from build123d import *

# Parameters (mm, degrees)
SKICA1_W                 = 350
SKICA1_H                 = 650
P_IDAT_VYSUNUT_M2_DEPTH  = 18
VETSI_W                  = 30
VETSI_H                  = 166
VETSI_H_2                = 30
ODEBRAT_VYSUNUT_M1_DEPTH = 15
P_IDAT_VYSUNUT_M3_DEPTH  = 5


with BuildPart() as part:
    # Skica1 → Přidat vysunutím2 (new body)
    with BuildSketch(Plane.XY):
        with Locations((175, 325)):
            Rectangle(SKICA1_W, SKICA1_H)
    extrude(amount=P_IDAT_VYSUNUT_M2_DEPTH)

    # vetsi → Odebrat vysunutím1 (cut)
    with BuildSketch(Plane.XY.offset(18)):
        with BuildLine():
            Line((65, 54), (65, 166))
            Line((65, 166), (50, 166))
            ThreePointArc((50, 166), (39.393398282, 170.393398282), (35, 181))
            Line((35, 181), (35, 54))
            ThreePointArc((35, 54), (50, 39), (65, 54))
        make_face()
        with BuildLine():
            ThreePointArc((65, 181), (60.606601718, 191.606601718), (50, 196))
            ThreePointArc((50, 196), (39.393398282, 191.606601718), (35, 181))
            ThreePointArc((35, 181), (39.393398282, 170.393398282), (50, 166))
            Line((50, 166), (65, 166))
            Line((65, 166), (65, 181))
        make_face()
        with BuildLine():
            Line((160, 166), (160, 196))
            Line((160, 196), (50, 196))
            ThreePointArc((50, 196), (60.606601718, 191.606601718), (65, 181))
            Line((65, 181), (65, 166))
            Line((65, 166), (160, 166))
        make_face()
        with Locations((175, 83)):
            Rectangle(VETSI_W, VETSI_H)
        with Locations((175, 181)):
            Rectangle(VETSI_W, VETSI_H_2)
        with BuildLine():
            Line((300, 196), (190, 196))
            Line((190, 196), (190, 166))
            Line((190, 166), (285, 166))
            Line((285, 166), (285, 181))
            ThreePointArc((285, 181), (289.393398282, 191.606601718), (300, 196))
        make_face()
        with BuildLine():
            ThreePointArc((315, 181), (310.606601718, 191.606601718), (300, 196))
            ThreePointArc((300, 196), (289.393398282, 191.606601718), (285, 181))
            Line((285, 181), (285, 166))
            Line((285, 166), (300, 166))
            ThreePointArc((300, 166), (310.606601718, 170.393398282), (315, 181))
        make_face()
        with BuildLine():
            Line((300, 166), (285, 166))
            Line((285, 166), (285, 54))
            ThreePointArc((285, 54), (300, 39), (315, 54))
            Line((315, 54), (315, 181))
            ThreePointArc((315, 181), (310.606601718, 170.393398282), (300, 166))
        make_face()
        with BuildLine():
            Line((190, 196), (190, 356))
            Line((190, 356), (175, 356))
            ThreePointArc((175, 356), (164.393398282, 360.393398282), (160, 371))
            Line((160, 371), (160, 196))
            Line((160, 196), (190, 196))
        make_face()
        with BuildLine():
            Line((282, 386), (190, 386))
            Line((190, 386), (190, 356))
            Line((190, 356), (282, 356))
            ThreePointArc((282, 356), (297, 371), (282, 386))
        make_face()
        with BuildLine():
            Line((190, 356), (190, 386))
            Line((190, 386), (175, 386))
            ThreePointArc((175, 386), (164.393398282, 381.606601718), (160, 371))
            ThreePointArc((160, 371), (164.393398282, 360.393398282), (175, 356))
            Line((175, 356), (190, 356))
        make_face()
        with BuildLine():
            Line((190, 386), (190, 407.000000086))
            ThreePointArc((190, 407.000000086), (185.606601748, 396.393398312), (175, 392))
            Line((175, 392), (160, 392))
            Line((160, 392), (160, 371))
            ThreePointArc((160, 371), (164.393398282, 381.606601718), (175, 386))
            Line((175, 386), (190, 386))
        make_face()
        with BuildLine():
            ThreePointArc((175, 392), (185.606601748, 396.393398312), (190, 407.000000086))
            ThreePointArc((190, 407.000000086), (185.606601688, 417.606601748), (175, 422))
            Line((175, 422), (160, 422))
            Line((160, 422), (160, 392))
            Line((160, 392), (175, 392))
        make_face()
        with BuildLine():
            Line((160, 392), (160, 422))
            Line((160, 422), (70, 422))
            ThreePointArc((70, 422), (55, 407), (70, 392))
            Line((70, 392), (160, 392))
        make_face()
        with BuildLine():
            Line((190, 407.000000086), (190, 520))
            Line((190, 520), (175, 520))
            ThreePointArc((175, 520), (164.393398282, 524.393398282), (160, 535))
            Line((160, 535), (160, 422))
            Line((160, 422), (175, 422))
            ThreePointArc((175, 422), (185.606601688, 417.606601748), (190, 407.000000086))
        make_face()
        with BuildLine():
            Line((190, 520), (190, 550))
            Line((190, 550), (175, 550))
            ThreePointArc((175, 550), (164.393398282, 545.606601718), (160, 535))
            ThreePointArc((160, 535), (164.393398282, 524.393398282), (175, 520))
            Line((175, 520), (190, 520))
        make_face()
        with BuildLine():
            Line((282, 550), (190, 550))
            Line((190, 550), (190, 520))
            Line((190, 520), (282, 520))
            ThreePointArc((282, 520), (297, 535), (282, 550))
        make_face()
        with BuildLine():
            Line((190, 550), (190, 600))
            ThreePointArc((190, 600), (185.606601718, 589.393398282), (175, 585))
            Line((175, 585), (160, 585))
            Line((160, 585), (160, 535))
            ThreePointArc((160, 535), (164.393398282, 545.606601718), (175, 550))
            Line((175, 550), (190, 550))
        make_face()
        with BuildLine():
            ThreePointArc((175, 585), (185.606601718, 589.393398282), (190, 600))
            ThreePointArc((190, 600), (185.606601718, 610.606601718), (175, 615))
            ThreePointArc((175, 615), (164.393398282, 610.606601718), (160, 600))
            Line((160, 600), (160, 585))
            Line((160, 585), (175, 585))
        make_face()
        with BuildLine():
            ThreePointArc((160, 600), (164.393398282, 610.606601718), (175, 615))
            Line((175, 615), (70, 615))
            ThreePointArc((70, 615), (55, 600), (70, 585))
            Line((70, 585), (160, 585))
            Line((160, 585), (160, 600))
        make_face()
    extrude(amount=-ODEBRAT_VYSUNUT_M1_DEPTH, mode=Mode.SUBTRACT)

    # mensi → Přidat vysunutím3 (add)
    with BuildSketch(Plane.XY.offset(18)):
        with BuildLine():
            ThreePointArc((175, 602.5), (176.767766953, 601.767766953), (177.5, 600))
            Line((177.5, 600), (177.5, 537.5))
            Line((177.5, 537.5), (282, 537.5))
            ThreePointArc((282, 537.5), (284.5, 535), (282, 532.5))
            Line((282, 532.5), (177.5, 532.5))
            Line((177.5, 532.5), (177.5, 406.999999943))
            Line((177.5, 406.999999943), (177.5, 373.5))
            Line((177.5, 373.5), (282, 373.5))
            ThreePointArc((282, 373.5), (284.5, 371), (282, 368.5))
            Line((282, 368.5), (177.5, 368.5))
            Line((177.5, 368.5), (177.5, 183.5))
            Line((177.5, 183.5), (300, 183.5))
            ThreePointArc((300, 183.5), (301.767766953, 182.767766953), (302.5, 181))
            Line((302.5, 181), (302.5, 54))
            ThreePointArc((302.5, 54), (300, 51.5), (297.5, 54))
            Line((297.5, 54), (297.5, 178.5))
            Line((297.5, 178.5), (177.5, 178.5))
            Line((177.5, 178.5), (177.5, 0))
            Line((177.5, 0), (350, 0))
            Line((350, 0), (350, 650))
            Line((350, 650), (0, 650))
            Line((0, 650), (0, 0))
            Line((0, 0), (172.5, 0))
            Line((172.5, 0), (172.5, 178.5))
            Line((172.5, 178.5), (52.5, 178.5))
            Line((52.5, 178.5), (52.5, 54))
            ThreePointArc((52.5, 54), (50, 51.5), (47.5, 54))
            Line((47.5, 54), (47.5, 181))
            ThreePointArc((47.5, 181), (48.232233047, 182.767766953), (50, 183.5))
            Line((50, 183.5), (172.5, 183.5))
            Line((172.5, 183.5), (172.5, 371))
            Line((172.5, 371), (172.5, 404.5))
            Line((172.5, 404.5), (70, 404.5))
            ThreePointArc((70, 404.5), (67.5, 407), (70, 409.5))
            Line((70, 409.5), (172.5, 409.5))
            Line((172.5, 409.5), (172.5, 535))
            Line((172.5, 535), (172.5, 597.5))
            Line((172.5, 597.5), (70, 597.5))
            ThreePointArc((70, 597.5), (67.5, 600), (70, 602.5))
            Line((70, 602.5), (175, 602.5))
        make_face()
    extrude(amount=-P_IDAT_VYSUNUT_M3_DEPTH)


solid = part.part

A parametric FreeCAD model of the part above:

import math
import FreeCAD as App
import Part
import Sketcher
Q = App.Units.Quantity


def add_polygon(sketch, points):
    """Adds a closed chain of lines whose ends are joined by coincident constraints."""
    first, n = sketch.GeometryCount, len(points)
    for a, b in zip(points, points[1:] + points[:1]):
        sketch.addGeometry(Part.LineSegment(App.Vector(*a, 0), App.Vector(*b, 0)), False)
    for i in range(n):
        sketch.addConstraint(Sketcher.Constraint("Coincident", first + i, 2, first + (i + 1) % n, 1))

doc = App.newDocument("Part")
params = doc.addObject("Spreadsheet::Sheet", "Params")
for row, (alias, value) in enumerate([
    ("sketch1_width", "350 mm"),
    ("sketch1_height", "650 mm"),
    ("pad1_length", "18 mm"),
    ("sketch2_radius", "15 mm"),
    ("sketch2_width", "95 mm"),
    ("sketch2_width2", "30 mm"),
    ("sketch2_width3", "92 mm"),
    ("sketch2_width4", "105 mm"),
    ("pocket1_length", "15 mm"),
    ("sketch3_radius", "2.5 mm"),
    ("sketch3_width", "120 mm"),
    ("sketch3_width2", "350 mm"),
    ("sketch3_width3", "105 mm"),
    ("sketch3_height", "159 mm"),
    ("pad2_length", "5 mm"),
], start=1):
    params.set(f"A{row}", alias)
    params.set(f"B{row}", "=" + value)
    params.setAlias(f"B{row}", alias)

body = doc.addObject("PartDesign::Body", "Body")

# Sketch on XY plane
sketch1 = body.newObject("Sketcher::SketchObject", "Sketch")
sketch1.AttachmentSupport = (doc.getObject("XY_Plane"), [""])
sketch1.MapMode = "FlatFace"
add_polygon(sketch1, [(0, 650), (0, 0), (350, 0), (350, 650)])  # lines 0-3
sketch1.addConstraint(Sketcher.Constraint("Vertical", 0))
sketch1.addConstraint(Sketcher.Constraint("Horizontal", 1))
sketch1.addConstraint(Sketcher.Constraint("Vertical", 2))
sketch1.addConstraint(Sketcher.Constraint("Horizontal", 3))
sketch1.addConstraint(Sketcher.Constraint("Coincident", 0, 2, -1, 1))
sketch1.addConstraint(Sketcher.Constraint("DistanceX", 1, 1, 1, 2, Q("350 mm")))
sketch1.addConstraint(Sketcher.Constraint("DistanceY", 0, 2, 0, 1, Q("650 mm")))
sketch1.setExpression("Constraints[9]", "Params.sketch1_width")
sketch1.setExpression("Constraints[10]", "Params.sketch1_height")
pad1 = body.newObject("PartDesign::Pad", "Pad")
pad1.Profile = sketch1
pad1.setExpression("Length", "Params.pad1_length")

# Sketch on XY plane
sketch2 = body.newObject("Sketcher::SketchObject", "Sketch001")
sketch2.AttachmentSupport = (doc.getObject("XY_Plane"), [""])
sketch2.MapMode = "FlatFace"
sketch2.AttachmentOffset = App.Placement(App.Vector(0, 0, 18), App.Rotation())
sketch2.addGeometry(Part.LineSegment(App.Vector(65, 54, 0), App.Vector(65, 166, 0)), False)
sketch2.addGeometry(Part.LineSegment(App.Vector(65, 166, 0), App.Vector(160, 166, 0)), False)
sketch2.addGeometry(Part.LineSegment(App.Vector(160, 166, 0), App.Vector(160, 0, 0)), False)
sketch2.addGeometry(Part.LineSegment(App.Vector(160, 0, 0), App.Vector(190, 0, 0)), False)
sketch2.addGeometry(Part.LineSegment(App.Vector(190, 0, 0), App.Vector(190, 166, 0)), False)
sketch2.addGeometry(Part.LineSegment(App.Vector(190, 166, 0), App.Vector(285, 166, 0)), False)
sketch2.addGeometry(Part.LineSegment(App.Vector(285, 166, 0), App.Vector(285, 54, 0)), False)
sketch2.addGeometry(Part.ArcOfCircle(Part.Circle(App.Vector(300, 54, 0), App.Vector(0, 0, 1), 15), math.radians(180), math.radians(360)), False)
sketch2.addGeometry(Part.LineSegment(App.Vector(315, 54, 0), App.Vector(315, 181, 0)), False)
sketch2.addGeometry(Part.ArcOfCircle(Part.Circle(App.Vector(300, 181, 0), App.Vector(0, 0, 1), 15), math.radians(0), math.radians(90)), False)
sketch2.addGeometry(Part.LineSegment(App.Vector(300, 196, 0), App.Vector(190, 196, 0)), False)
sketch2.addGeometry(Part.LineSegment(App.Vector(190, 196, 0), App.Vector(190, 356, 0)), False)
sketch2.addGeometry(Part.LineSegment(App.Vector(190, 356, 0), App.Vector(282, 356, 0)), False)
sketch2.addGeometry(Part.ArcOfCircle(Part.Circle(App.Vector(282, 371, 0), App.Vector(0, 0, 1), 15), math.radians(-90), math.radians(90)), False)
sketch2.addGeometry(Part.LineSegment(App.Vector(282, 386, 0), App.Vector(190, 386, 0)), False)
sketch2.addGeometry(Part.LineSegment(App.Vector(190, 386, 0), App.Vector(190, 520, 0)), False)
sketch2.addGeometry(Part.LineSegment(App.Vector(190, 520, 0), App.Vector(282, 520, 0)), False)
sketch2.addGeometry(Part.ArcOfCircle(Part.Circle(App.Vector(282, 535, 0), App.Vector(0, 0, 1), 15), math.radians(-90), math.radians(90)), False)
sketch2.addGeometry(Part.LineSegment(App.Vector(282, 550, 0), App.Vector(190, 550, 0)), False)
sketch2.addGeometry(Part.LineSegment(App.Vector(190, 550, 0), App.Vector(190, 600, 0)), False)
sketch2.addGeometry(Part.ArcOfCircle(Part.Circle(App.Vector(175, 600, 0), App.Vector(0, 0, 1), 15), math.radians(0), math.radians(90)), False)
sketch2.addGeometry(Part.LineSegment(App.Vector(175, 615, 0), App.Vector(70, 615, 0)), False)
sketch2.addGeometry(Part.ArcOfCircle(Part.Circle(App.Vector(70, 600, 0), App.Vector(0, 0, 1), 15), math.radians(90), math.radians(270)), False)
sketch2.addGeometry(Part.LineSegment(App.Vector(70, 585, 0), App.Vector(160, 585, 0)), False)
sketch2.addGeometry(Part.LineSegment(App.Vector(160, 585, 0), App.Vector(160, 422, 0)), False)
sketch2.addGeometry(Part.LineSegment(App.Vector(160, 422, 0), App.Vector(70, 422, 0)), False)
sketch2.addGeometry(Part.ArcOfCircle(Part.Circle(App.Vector(70, 407, 0), App.Vector(0, 0, 1), 15), math.radians(90), math.radians(270)), False)
sketch2.addGeometry(Part.LineSegment(App.Vector(70, 392, 0), App.Vector(160, 392, 0)), False)
sketch2.addGeometry(Part.LineSegment(App.Vector(160, 392, 0), App.Vector(160, 196, 0)), False)
sketch2.addGeometry(Part.LineSegment(App.Vector(160, 196, 0), App.Vector(50, 196, 0)), False)
sketch2.addGeometry(Part.ArcOfCircle(Part.Circle(App.Vector(50, 181, 0), App.Vector(0, 0, 1), 15), math.radians(90), math.radians(180)), False)
sketch2.addGeometry(Part.LineSegment(App.Vector(35, 181, 0), App.Vector(35, 54, 0)), False)
sketch2.addGeometry(Part.ArcOfCircle(Part.Circle(App.Vector(50, 54, 0), App.Vector(0, 0, 1), 15), math.radians(180), math.radians(360)), False)
sketch2.addConstraint(Sketcher.Constraint("Coincident", 0, 2, 1, 1))
sketch2.addConstraint(Sketcher.Constraint("Coincident", 1, 2, 2, 1))
sketch2.addConstraint(Sketcher.Constraint("Coincident", 2, 2, 3, 1))
sketch2.addConstraint(Sketcher.Constraint("Coincident", 3, 2, 4, 1))
sketch2.addConstraint(Sketcher.Constraint("Coincident", 4, 2, 5, 1))
sketch2.addConstraint(Sketcher.Constraint("Coincident", 5, 2, 6, 1))
sketch2.addConstraint(Sketcher.Constraint("Tangent", 6, 2, 7, 1))
sketch2.addConstraint(Sketcher.Constraint("Tangent", 7, 2, 8, 1))
sketch2.addConstraint(Sketcher.Constraint("Tangent", 8, 2, 9, 1))
sketch2.addConstraint(Sketcher.Constraint("Tangent", 9, 2, 10, 1))
sketch2.addConstraint(Sketcher.Constraint("Coincident", 10, 2, 11, 1))
sketch2.addConstraint(Sketcher.Constraint("Coincident", 11, 2, 12, 1))
sketch2.addConstraint(Sketcher.Constraint("Tangent", 12, 2, 13, 1))
sketch2.addConstraint(Sketcher.Constraint("Tangent", 13, 2, 14, 1))
sketch2.addConstraint(Sketcher.Constraint("Coincident", 14, 2, 15, 1))
sketch2.addConstraint(Sketcher.Constraint("Coincident", 15, 2, 16, 1))
sketch2.addConstraint(Sketcher.Constraint("Tangent", 16, 2, 17, 1))
sketch2.addConstraint(Sketcher.Constraint("Tangent", 17, 2, 18, 1))
sketch2.addConstraint(Sketcher.Constraint("Coincident", 18, 2, 19, 1))
sketch2.addConstraint(Sketcher.Constraint("Tangent", 19, 2, 20, 1))
sketch2.addConstraint(Sketcher.Constraint("Tangent", 20, 2, 21, 1))
sketch2.addConstraint(Sketcher.Constraint("Tangent", 21, 2, 22, 1))
sketch2.addConstraint(Sketcher.Constraint("Tangent", 22, 2, 23, 1))
sketch2.addConstraint(Sketcher.Constraint("Coincident", 23, 2, 24, 1))
sketch2.addConstraint(Sketcher.Constraint("Coincident", 24, 2, 25, 1))
sketch2.addConstraint(Sketcher.Constraint("Tangent", 25, 2, 26, 1))
sketch2.addConstraint(Sketcher.Constraint("Tangent", 26, 2, 27, 1))
sketch2.addConstraint(Sketcher.Constraint("Coincident", 27, 2, 28, 1))
sketch2.addConstraint(Sketcher.Constraint("Coincident", 28, 2, 29, 1))
sketch2.addConstraint(Sketcher.Constraint("Tangent", 29, 2, 30, 1))
sketch2.addConstraint(Sketcher.Constraint("Tangent", 30, 2, 31, 1))
sketch2.addConstraint(Sketcher.Constraint("Tangent", 31, 2, 32, 1))
sketch2.addConstraint(Sketcher.Constraint("Tangent", 32, 2, 0, 1))
sketch2.addConstraint(Sketcher.Constraint("Vertical", 0))
sketch2.addConstraint(Sketcher.Constraint("Horizontal", 1))
sketch2.addConstraint(Sketcher.Constraint("Vertical", 2))
sketch2.addConstraint(Sketcher.Constraint("Horizontal", 3))
sketch2.addConstraint(Sketcher.Constraint("Vertical", 4))
sketch2.addConstraint(Sketcher.Constraint("Horizontal", 5))
sketch2.addConstraint(Sketcher.Constraint("Vertical", 6))
sketch2.addConstraint(Sketcher.Constraint("Vertical", 8))
sketch2.addConstraint(Sketcher.Constraint("Horizontal", 10))
sketch2.addConstraint(Sketcher.Constraint("Vertical", 11))
sketch2.addConstraint(Sketcher.Constraint("Horizontal", 12))
sketch2.addConstraint(Sketcher.Constraint("Horizontal", 14))
sketch2.addConstraint(Sketcher.Constraint("Vertical", 15))
sketch2.addConstraint(Sketcher.Constraint("Horizontal", 16))
sketch2.addConstraint(Sketcher.Constraint("Horizontal", 18))
sketch2.addConstraint(Sketcher.Constraint("Vertical", 19))
sketch2.addConstraint(Sketcher.Constraint("Horizontal", 21))
sketch2.addConstraint(Sketcher.Constraint("Horizontal", 23))
sketch2.addConstraint(Sketcher.Constraint("Vertical", 24))
sketch2.addConstraint(Sketcher.Constraint("Horizontal", 25))
sketch2.addConstraint(Sketcher.Constraint("Horizontal", 27))
sketch2.addConstraint(Sketcher.Constraint("Vertical", 28))
sketch2.addConstraint(Sketcher.Constraint("Horizontal", 29))
sketch2.addConstraint(Sketcher.Constraint("Vertical", 31))
sketch2.addConstraint(Sketcher.Constraint("Equal", 7, 9))
sketch2.addConstraint(Sketcher.Constraint("Equal", 9, 13))
sketch2.addConstraint(Sketcher.Constraint("Equal", 13, 17))
sketch2.addConstraint(Sketcher.Constraint("Equal", 17, 20))
sketch2.addConstraint(Sketcher.Constraint("Equal", 20, 22))
sketch2.addConstraint(Sketcher.Constraint("Equal", 22, 26))
sketch2.addConstraint(Sketcher.Constraint("Equal", 26, 30))
sketch2.addConstraint(Sketcher.Constraint("Equal", 30, 32))
sketch2.addConstraint(Sketcher.Constraint("PointOnObject", 2, 2, -1))
sketch2.addConstraint(Sketcher.Constraint("Horizontal", 9, 3, 30, 3))
sketch2.addConstraint(Sketcher.Constraint("Horizontal", 7, 3, 32, 3))
sketch2.addConstraint(Sketcher.Constraint("Horizontal", 1, 2, 4, 2))
sketch2.addConstraint(Sketcher.Constraint("Vertical", 13, 3, 17, 3))
sketch2.addConstraint(Sketcher.Constraint("Vertical", 22, 3, 26, 3))
sketch2.addConstraint(Sketcher.Constraint("Vertical", 4, 2, 10, 2))
sketch2.addConstraint(Sketcher.Constraint("Vertical", 11, 2, 14, 2))
sketch2.addConstraint(Sketcher.Constraint("Vertical", 15, 2, 18, 2))
sketch2.addConstraint(Sketcher.Constraint("Vertical", 2, 2, 23, 2))
sketch2.addConstraint(Sketcher.Constraint("Vertical", 24, 2, 27, 2))
sketch2.addConstraint(Sketcher.Constraint("Equal", 1, 5))
sketch2.addConstraint(Sketcher.Constraint("Radius", 7, Q("15 mm")))
sketch2.addConstraint(Sketcher.Constraint("DistanceX", 1, 1, 1, 2, Q("95 mm")))
sketch2.addConstraint(Sketcher.Constraint("DistanceX", 3, 1, 3, 2, Q("30 mm")))
sketch2.addConstraint(Sketcher.Constraint("DistanceX", 12, 1, 12, 2, Q("92 mm")))
sketch2.addConstraint(Sketcher.Constraint("DistanceX", 21, 2, 21, 1, Q("105 mm")))
sketch2.addConstraint(Sketcher.Constraint("DistanceY", 0, 1, 0, 2, Q("112 mm")))
sketch2.addConstraint(Sketcher.Constraint("DistanceY", 2, 2, 2, 1, Q("166 mm")))
sketch2.addConstraint(Sketcher.Constraint("DistanceY", 8, 1, 8, 2, Q("127 mm")))
sketch2.addConstraint(Sketcher.Constraint("DistanceY", 11, 1, 11, 2, Q("160 mm")))
sketch2.addConstraint(Sketcher.Constraint("DistanceY", 15, 1, 15, 2, Q("134 mm")))
sketch2.addConstraint(Sketcher.Constraint("DistanceY", 19, 1, 19, 2, Q("50 mm")))
sketch2.addConstraint(Sketcher.Constraint("DistanceY", 24, 2, 24, 1, Q("163 mm")))
sketch2.addConstraint(Sketcher.Constraint("DistanceX", -1, 1, 7, 3, Q("300 mm")))
sketch2.setExpression("Constraints[77]", "Params.sketch2_radius")
sketch2.setExpression("Constraints[78]", "Params.sketch2_width")
sketch2.setExpression("Constraints[79]", "Params.sketch2_width2")
sketch2.setExpression("Constraints[80]", "Params.sketch2_width3")
sketch2.setExpression("Constraints[81]", "Params.sketch2_width4")
pocket1 = body.newObject("PartDesign::Pocket", "Pocket")
pocket1.Profile = sketch2
pocket1.setExpression("Length", "Params.pocket1_length")

# Sketch on XY plane
sketch3 = body.newObject("Sketcher::SketchObject", "Sketch002")
sketch3.AttachmentSupport = (doc.getObject("XY_Plane"), [""])
sketch3.MapMode = "FlatFace"
sketch3.AttachmentOffset = App.Placement(App.Vector(0, 0, 18), App.Rotation())
sketch3.addGeometry(Part.ArcOfCircle(Part.Circle(App.Vector(175, 600, 0), App.Vector(0, 0, 1), 2.5), math.radians(0), math.radians(90)), False)
sketch3.addGeometry(Part.LineSegment(App.Vector(177.5, 600, 0), App.Vector(177.5, 537.5, 0)), False)
sketch3.addGeometry(Part.LineSegment(App.Vector(177.5, 537.5, 0), App.Vector(282, 537.5, 0)), False)
sketch3.addGeometry(Part.ArcOfCircle(Part.Circle(App.Vector(282, 535, 0), App.Vector(0, 0, 1), 2.5), math.radians(-90), math.radians(90)), False)
sketch3.addGeometry(Part.LineSegment(App.Vector(282, 532.5, 0), App.Vector(177.5, 532.5, 0)), False)
sketch3.addGeometry(Part.LineSegment(App.Vector(177.5, 532.5, 0), App.Vector(177.5, 373.5, 0)), False)
sketch3.addGeometry(Part.LineSegment(App.Vector(177.5, 373.5, 0), App.Vector(282, 373.5, 0)), False)
sketch3.addGeometry(Part.ArcOfCircle(Part.Circle(App.Vector(282, 371, 0), App.Vector(0, 0, 1), 2.5), math.radians(-90), math.radians(90)), False)
sketch3.addGeometry(Part.LineSegment(App.Vector(282, 368.5, 0), App.Vector(177.5, 368.5, 0)), False)
sketch3.addGeometry(Part.LineSegment(App.Vector(177.5, 368.5, 0), App.Vector(177.5, 183.5, 0)), False)
sketch3.addGeometry(Part.LineSegment(App.Vector(177.5, 183.5, 0), App.Vector(300, 183.5, 0)), False)
sketch3.addGeometry(Part.ArcOfCircle(Part.Circle(App.Vector(300, 181, 0), App.Vector(0, 0, 1), 2.5), math.radians(0), math.radians(90)), False)
sketch3.addGeometry(Part.LineSegment(App.Vector(302.5, 181, 0), App.Vector(302.5, 54, 0)), False)
sketch3.addGeometry(Part.ArcOfCircle(Part.Circle(App.Vector(300, 54, 0), App.Vector(0, 0, 1), 2.5), math.radians(180), math.radians(360)), False)
sketch3.addGeometry(Part.LineSegment(App.Vector(297.5, 54, 0), App.Vector(297.5, 178.5, 0)), False)
sketch3.addGeometry(Part.LineSegment(App.Vector(297.5, 178.5, 0), App.Vector(177.5, 178.5, 0)), False)
sketch3.addGeometry(Part.LineSegment(App.Vector(177.5, 178.5, 0), App.Vector(177.5, 0, 0)), False)
sketch3.addGeometry(Part.LineSegment(App.Vector(177.5, 0, 0), App.Vector(350, 0, 0)), False)
sketch3.addGeometry(Part.LineSegment(App.Vector(350, 0, 0), App.Vector(350, 650, 0)), False)
sketch3.addGeometry(Part.LineSegment(App.Vector(350, 650, 0), App.Vector(0, 650, 0)), False)
sketch3.addGeometry(Part.LineSegment(App.Vector(0, 650, 0), App.Vector(0, 0, 0)), False)
sketch3.addGeometry(Part.LineSegment(App.Vector(0, 0, 0), App.Vector(172.5, 0, 0)), False)
sketch3.addGeometry(Part.LineSegment(App.Vector(172.5, 0, 0), App.Vector(172.5, 178.5, 0)), False)
sketch3.addGeometry(Part.LineSegment(App.Vector(172.5, 178.5, 0), App.Vector(52.5, 178.5, 0)), False)
sketch3.addGeometry(Part.LineSegment(App.Vector(52.5, 178.5, 0), App.Vector(52.5, 54, 0)), False)
sketch3.addGeometry(Part.ArcOfCircle(Part.Circle(App.Vector(50, 54, 0), App.Vector(0, 0, 1), 2.5), math.radians(180), math.radians(360)), False)
sketch3.addGeometry(Part.LineSegment(App.Vector(47.5, 54, 0), App.Vector(47.5, 181, 0)), False)
sketch3.addGeometry(Part.ArcOfCircle(Part.Circle(App.Vector(50, 181, 0), App.Vector(0, 0, 1), 2.5), math.radians(90), math.radians(180)), False)
sketch3.addGeometry(Part.LineSegment(App.Vector(50, 183.5, 0), App.Vector(172.5, 183.5, 0)), False)
sketch3.addGeometry(Part.LineSegment(App.Vector(172.5, 183.5, 0), App.Vector(172.5, 404.5, 0)), False)
sketch3.addGeometry(Part.LineSegment(App.Vector(172.5, 404.5, 0), App.Vector(70, 404.5, 0)), False)
sketch3.addGeometry(Part.ArcOfCircle(Part.Circle(App.Vector(70, 407, 0), App.Vector(0, 0, 1), 2.5), math.radians(90), math.radians(270)), False)
sketch3.addGeometry(Part.LineSegment(App.Vector(70, 409.5, 0), App.Vector(172.5, 409.5, 0)), False)
sketch3.addGeometry(Part.LineSegment(App.Vector(172.5, 409.5, 0), App.Vector(172.5, 597.5, 0)), False)
sketch3.addGeometry(Part.LineSegment(App.Vector(172.5, 597.5, 0), App.Vector(70, 597.5, 0)), False)
sketch3.addGeometry(Part.ArcOfCircle(Part.Circle(App.Vector(70, 600, 0), App.Vector(0, 0, 1), 2.5), math.radians(90), math.radians(270)), False)
sketch3.addGeometry(Part.LineSegment(App.Vector(70, 602.5, 0), App.Vector(175, 602.5, 0)), False)
sketch3.addConstraint(Sketcher.Constraint("Tangent", 0, 1, 1, 1))
sketch3.addConstraint(Sketcher.Constraint("Coincident", 1, 2, 2, 1))
sketch3.addConstraint(Sketcher.Constraint("Tangent", 2, 2, 3, 2))
sketch3.addConstraint(Sketcher.Constraint("Tangent", 3, 1, 4, 1))
sketch3.addConstraint(Sketcher.Constraint("Coincident", 4, 2, 5, 1))
sketch3.addConstraint(Sketcher.Constraint("Coincident", 5, 2, 6, 1))
sketch3.addConstraint(Sketcher.Constraint("Tangent", 6, 2, 7, 2))
sketch3.addConstraint(Sketcher.Constraint("Tangent", 7, 1, 8, 1))
sketch3.addConstraint(Sketcher.Constraint("Coincident", 8, 2, 9, 1))
sketch3.addConstraint(Sketcher.Constraint("Coincident", 9, 2, 10, 1))
sketch3.addConstraint(Sketcher.Constraint("Tangent", 10, 2, 11, 2))
sketch3.addConstraint(Sketcher.Constraint("Tangent", 11, 1, 12, 1))
sketch3.addConstraint(Sketcher.Constraint("Tangent", 12, 2, 13, 2))
sketch3.addConstraint(Sketcher.Constraint("Tangent", 13, 1, 14, 1))
sketch3.addConstraint(Sketcher.Constraint("Coincident", 14, 2, 15, 1))
sketch3.addConstraint(Sketcher.Constraint("Coincident", 15, 2, 16, 1))
sketch3.addConstraint(Sketcher.Constraint("Coincident", 16, 2, 17, 1))
sketch3.addConstraint(Sketcher.Constraint("Coincident", 17, 2, 18, 1))
sketch3.addConstraint(Sketcher.Constraint("Coincident", 18, 2, 19, 1))
sketch3.addConstraint(Sketcher.Constraint("Coincident", 19, 2, 20, 1))
sketch3.addConstraint(Sketcher.Constraint("Coincident", 20, 2, 21, 1))
sketch3.addConstraint(Sketcher.Constraint("Coincident", 21, 2, 22, 1))
sketch3.addConstraint(Sketcher.Constraint("Coincident", 22, 2, 23, 1))
sketch3.addConstraint(Sketcher.Constraint("Coincident", 23, 2, 24, 1))
sketch3.addConstraint(Sketcher.Constraint("Tangent", 24, 2, 25, 2))
sketch3.addConstraint(Sketcher.Constraint("Tangent", 25, 1, 26, 1))
sketch3.addConstraint(Sketcher.Constraint("Tangent", 26, 2, 27, 2))
sketch3.addConstraint(Sketcher.Constraint("Tangent", 27, 1, 28, 1))
sketch3.addConstraint(Sketcher.Constraint("Coincident", 28, 2, 29, 1))
sketch3.addConstraint(Sketcher.Constraint("Coincident", 29, 2, 30, 1))
sketch3.addConstraint(Sketcher.Constraint("Tangent", 30, 2, 31, 2))
sketch3.addConstraint(Sketcher.Constraint("Tangent", 31, 1, 32, 1))
sketch3.addConstraint(Sketcher.Constraint("Coincident", 32, 2, 33, 1))
sketch3.addConstraint(Sketcher.Constraint("Coincident", 33, 2, 34, 1))
sketch3.addConstraint(Sketcher.Constraint("Tangent", 34, 2, 35, 2))
sketch3.addConstraint(Sketcher.Constraint("Tangent", 35, 1, 36, 1))
sketch3.addConstraint(Sketcher.Constraint("Tangent", 36, 2, 0, 2))
sketch3.addConstraint(Sketcher.Constraint("Vertical", 1))
sketch3.addConstraint(Sketcher.Constraint("Horizontal", 2))
sketch3.addConstraint(Sketcher.Constraint("Horizontal", 4))
sketch3.addConstraint(Sketcher.Constraint("Vertical", 5))
sketch3.addConstraint(Sketcher.Constraint("Horizontal", 6))
sketch3.addConstraint(Sketcher.Constraint("Horizontal", 8))
sketch3.addConstraint(Sketcher.Constraint("Vertical", 9))
sketch3.addConstraint(Sketcher.Constraint("Horizontal", 10))
sketch3.addConstraint(Sketcher.Constraint("Vertical", 12))
sketch3.addConstraint(Sketcher.Constraint("Vertical", 14))
sketch3.addConstraint(Sketcher.Constraint("Horizontal", 15))
sketch3.addConstraint(Sketcher.Constraint("Vertical", 16))
sketch3.addConstraint(Sketcher.Constraint("Horizontal", 17))
sketch3.addConstraint(Sketcher.Constraint("Vertical", 18))
sketch3.addConstraint(Sketcher.Constraint("Horizontal", 19))
sketch3.addConstraint(Sketcher.Constraint("Vertical", 20))
sketch3.addConstraint(Sketcher.Constraint("Horizontal", 21))
sketch3.addConstraint(Sketcher.Constraint("Vertical", 22))
sketch3.addConstraint(Sketcher.Constraint("Horizontal", 23))
sketch3.addConstraint(Sketcher.Constraint("Vertical", 24))
sketch3.addConstraint(Sketcher.Constraint("Vertical", 26))
sketch3.addConstraint(Sketcher.Constraint("Horizontal", 28))
sketch3.addConstraint(Sketcher.Constraint("Vertical", 29))
sketch3.addConstraint(Sketcher.Constraint("Horizontal", 30))
sketch3.addConstraint(Sketcher.Constraint("Horizontal", 32))
sketch3.addConstraint(Sketcher.Constraint("Vertical", 33))
sketch3.addConstraint(Sketcher.Constraint("Horizontal", 34))
sketch3.addConstraint(Sketcher.Constraint("Horizontal", 36))
sketch3.addConstraint(Sketcher.Constraint("Coincident", 20, 2, -1, 1))
sketch3.addConstraint(Sketcher.Constraint("Equal", 0, 3))
sketch3.addConstraint(Sketcher.Constraint("Equal", 3, 7))
sketch3.addConstraint(Sketcher.Constraint("Equal", 7, 11))
sketch3.addConstraint(Sketcher.Constraint("Equal", 11, 13))
sketch3.addConstraint(Sketcher.Constraint("Equal", 13, 25))
sketch3.addConstraint(Sketcher.Constraint("Equal", 25, 27))
sketch3.addConstraint(Sketcher.Constraint("Equal", 27, 31))
sketch3.addConstraint(Sketcher.Constraint("Equal", 31, 35))
sketch3.addConstraint(Sketcher.Constraint("PointOnObject", 16, 2, -1))
sketch3.addConstraint(Sketcher.Constraint("Horizontal", 13, 3, 25, 3))
sketch3.addConstraint(Sketcher.Constraint("Horizontal", 11, 3, 27, 3))
sketch3.addConstraint(Sketcher.Constraint("Horizontal", 15, 2, 22, 2))
sketch3.addConstraint(Sketcher.Constraint("Vertical", 3, 3, 7, 3))
sketch3.addConstraint(Sketcher.Constraint("Vertical", 31, 3, 35, 3))
sketch3.addConstraint(Sketcher.Constraint("Vertical", 1, 2, 4, 2))
sketch3.addConstraint(Sketcher.Constraint("Vertical", 5, 2, 8, 2))
sketch3.addConstraint(Sketcher.Constraint("Vertical", 9, 2, 15, 2))
sketch3.addConstraint(Sketcher.Constraint("Vertical", 22, 2, 28, 2))
sketch3.addConstraint(Sketcher.Constraint("Vertical", 29, 2, 32, 2))
sketch3.addConstraint(Sketcher.Constraint("Equal", 17, 21))
sketch3.addConstraint(Sketcher.Constraint("Equal", 15, 23))
sketch3.addConstraint(Sketcher.Constraint("Radius", 0, Q("2.5 mm")))
sketch3.addConstraint(Sketcher.Constraint("DistanceX", 15, 2, 15, 1, Q("120 mm")))
sketch3.addConstraint(Sketcher.Constraint("DistanceX", 19, 2, 19, 1, Q("350 mm")))
sketch3.addConstraint(Sketcher.Constraint("DistanceX", 36, 1, 36, 2, Q("105 mm")))
sketch3.addConstraint(Sketcher.Constraint("DistanceY", 5, 2, 5, 1, Q("159 mm")))
sketch3.addConstraint(Sketcher.Constraint("DistanceY", 9, 2, 9, 1, Q("185 mm")))
sketch3.addConstraint(Sketcher.Constraint("DistanceY", 12, 2, 12, 1, Q("127 mm")))
sketch3.addConstraint(Sketcher.Constraint("DistanceY", 18, 1, 18, 2, Q("650 mm")))
sketch3.addConstraint(Sketcher.Constraint("DistanceY", 29, 1, 29, 2, Q("221 mm")))
sketch3.addConstraint(Sketcher.Constraint("DistanceY", 33, 1, 33, 2, Q("188 mm")))
sketch3.addConstraint(Sketcher.Constraint("DistanceX", 2, 1, 2, 2, Q("104.5 mm")))
sketch3.addConstraint(Sketcher.Constraint("DistanceX", 17, 1, 17, 2, Q("172.5 mm")))
sketch3.addConstraint(Sketcher.Constraint("DistanceY", 14, 1, 14, 2, Q("124.5 mm")))
sketch3.addConstraint(Sketcher.Constraint("DistanceY", 16, 2, 16, 1, Q("178.5 mm")))
sketch3.setExpression("Constraints[87]", "Params.sketch3_radius")
sketch3.setExpression("Constraints[88]", "Params.sketch3_width")
sketch3.setExpression("Constraints[89]", "Params.sketch3_width2")
sketch3.setExpression("Constraints[90]", "Params.sketch3_width3")
sketch3.setExpression("Constraints[91]", "Params.sketch3_height")
pad2 = body.newObject("PartDesign::Pad", "Pad001")
pad2.Profile = sketch3
pad2.setExpression("Length", "Params.pad2_length")
pad2.Reversed = True

doc.recompute()
